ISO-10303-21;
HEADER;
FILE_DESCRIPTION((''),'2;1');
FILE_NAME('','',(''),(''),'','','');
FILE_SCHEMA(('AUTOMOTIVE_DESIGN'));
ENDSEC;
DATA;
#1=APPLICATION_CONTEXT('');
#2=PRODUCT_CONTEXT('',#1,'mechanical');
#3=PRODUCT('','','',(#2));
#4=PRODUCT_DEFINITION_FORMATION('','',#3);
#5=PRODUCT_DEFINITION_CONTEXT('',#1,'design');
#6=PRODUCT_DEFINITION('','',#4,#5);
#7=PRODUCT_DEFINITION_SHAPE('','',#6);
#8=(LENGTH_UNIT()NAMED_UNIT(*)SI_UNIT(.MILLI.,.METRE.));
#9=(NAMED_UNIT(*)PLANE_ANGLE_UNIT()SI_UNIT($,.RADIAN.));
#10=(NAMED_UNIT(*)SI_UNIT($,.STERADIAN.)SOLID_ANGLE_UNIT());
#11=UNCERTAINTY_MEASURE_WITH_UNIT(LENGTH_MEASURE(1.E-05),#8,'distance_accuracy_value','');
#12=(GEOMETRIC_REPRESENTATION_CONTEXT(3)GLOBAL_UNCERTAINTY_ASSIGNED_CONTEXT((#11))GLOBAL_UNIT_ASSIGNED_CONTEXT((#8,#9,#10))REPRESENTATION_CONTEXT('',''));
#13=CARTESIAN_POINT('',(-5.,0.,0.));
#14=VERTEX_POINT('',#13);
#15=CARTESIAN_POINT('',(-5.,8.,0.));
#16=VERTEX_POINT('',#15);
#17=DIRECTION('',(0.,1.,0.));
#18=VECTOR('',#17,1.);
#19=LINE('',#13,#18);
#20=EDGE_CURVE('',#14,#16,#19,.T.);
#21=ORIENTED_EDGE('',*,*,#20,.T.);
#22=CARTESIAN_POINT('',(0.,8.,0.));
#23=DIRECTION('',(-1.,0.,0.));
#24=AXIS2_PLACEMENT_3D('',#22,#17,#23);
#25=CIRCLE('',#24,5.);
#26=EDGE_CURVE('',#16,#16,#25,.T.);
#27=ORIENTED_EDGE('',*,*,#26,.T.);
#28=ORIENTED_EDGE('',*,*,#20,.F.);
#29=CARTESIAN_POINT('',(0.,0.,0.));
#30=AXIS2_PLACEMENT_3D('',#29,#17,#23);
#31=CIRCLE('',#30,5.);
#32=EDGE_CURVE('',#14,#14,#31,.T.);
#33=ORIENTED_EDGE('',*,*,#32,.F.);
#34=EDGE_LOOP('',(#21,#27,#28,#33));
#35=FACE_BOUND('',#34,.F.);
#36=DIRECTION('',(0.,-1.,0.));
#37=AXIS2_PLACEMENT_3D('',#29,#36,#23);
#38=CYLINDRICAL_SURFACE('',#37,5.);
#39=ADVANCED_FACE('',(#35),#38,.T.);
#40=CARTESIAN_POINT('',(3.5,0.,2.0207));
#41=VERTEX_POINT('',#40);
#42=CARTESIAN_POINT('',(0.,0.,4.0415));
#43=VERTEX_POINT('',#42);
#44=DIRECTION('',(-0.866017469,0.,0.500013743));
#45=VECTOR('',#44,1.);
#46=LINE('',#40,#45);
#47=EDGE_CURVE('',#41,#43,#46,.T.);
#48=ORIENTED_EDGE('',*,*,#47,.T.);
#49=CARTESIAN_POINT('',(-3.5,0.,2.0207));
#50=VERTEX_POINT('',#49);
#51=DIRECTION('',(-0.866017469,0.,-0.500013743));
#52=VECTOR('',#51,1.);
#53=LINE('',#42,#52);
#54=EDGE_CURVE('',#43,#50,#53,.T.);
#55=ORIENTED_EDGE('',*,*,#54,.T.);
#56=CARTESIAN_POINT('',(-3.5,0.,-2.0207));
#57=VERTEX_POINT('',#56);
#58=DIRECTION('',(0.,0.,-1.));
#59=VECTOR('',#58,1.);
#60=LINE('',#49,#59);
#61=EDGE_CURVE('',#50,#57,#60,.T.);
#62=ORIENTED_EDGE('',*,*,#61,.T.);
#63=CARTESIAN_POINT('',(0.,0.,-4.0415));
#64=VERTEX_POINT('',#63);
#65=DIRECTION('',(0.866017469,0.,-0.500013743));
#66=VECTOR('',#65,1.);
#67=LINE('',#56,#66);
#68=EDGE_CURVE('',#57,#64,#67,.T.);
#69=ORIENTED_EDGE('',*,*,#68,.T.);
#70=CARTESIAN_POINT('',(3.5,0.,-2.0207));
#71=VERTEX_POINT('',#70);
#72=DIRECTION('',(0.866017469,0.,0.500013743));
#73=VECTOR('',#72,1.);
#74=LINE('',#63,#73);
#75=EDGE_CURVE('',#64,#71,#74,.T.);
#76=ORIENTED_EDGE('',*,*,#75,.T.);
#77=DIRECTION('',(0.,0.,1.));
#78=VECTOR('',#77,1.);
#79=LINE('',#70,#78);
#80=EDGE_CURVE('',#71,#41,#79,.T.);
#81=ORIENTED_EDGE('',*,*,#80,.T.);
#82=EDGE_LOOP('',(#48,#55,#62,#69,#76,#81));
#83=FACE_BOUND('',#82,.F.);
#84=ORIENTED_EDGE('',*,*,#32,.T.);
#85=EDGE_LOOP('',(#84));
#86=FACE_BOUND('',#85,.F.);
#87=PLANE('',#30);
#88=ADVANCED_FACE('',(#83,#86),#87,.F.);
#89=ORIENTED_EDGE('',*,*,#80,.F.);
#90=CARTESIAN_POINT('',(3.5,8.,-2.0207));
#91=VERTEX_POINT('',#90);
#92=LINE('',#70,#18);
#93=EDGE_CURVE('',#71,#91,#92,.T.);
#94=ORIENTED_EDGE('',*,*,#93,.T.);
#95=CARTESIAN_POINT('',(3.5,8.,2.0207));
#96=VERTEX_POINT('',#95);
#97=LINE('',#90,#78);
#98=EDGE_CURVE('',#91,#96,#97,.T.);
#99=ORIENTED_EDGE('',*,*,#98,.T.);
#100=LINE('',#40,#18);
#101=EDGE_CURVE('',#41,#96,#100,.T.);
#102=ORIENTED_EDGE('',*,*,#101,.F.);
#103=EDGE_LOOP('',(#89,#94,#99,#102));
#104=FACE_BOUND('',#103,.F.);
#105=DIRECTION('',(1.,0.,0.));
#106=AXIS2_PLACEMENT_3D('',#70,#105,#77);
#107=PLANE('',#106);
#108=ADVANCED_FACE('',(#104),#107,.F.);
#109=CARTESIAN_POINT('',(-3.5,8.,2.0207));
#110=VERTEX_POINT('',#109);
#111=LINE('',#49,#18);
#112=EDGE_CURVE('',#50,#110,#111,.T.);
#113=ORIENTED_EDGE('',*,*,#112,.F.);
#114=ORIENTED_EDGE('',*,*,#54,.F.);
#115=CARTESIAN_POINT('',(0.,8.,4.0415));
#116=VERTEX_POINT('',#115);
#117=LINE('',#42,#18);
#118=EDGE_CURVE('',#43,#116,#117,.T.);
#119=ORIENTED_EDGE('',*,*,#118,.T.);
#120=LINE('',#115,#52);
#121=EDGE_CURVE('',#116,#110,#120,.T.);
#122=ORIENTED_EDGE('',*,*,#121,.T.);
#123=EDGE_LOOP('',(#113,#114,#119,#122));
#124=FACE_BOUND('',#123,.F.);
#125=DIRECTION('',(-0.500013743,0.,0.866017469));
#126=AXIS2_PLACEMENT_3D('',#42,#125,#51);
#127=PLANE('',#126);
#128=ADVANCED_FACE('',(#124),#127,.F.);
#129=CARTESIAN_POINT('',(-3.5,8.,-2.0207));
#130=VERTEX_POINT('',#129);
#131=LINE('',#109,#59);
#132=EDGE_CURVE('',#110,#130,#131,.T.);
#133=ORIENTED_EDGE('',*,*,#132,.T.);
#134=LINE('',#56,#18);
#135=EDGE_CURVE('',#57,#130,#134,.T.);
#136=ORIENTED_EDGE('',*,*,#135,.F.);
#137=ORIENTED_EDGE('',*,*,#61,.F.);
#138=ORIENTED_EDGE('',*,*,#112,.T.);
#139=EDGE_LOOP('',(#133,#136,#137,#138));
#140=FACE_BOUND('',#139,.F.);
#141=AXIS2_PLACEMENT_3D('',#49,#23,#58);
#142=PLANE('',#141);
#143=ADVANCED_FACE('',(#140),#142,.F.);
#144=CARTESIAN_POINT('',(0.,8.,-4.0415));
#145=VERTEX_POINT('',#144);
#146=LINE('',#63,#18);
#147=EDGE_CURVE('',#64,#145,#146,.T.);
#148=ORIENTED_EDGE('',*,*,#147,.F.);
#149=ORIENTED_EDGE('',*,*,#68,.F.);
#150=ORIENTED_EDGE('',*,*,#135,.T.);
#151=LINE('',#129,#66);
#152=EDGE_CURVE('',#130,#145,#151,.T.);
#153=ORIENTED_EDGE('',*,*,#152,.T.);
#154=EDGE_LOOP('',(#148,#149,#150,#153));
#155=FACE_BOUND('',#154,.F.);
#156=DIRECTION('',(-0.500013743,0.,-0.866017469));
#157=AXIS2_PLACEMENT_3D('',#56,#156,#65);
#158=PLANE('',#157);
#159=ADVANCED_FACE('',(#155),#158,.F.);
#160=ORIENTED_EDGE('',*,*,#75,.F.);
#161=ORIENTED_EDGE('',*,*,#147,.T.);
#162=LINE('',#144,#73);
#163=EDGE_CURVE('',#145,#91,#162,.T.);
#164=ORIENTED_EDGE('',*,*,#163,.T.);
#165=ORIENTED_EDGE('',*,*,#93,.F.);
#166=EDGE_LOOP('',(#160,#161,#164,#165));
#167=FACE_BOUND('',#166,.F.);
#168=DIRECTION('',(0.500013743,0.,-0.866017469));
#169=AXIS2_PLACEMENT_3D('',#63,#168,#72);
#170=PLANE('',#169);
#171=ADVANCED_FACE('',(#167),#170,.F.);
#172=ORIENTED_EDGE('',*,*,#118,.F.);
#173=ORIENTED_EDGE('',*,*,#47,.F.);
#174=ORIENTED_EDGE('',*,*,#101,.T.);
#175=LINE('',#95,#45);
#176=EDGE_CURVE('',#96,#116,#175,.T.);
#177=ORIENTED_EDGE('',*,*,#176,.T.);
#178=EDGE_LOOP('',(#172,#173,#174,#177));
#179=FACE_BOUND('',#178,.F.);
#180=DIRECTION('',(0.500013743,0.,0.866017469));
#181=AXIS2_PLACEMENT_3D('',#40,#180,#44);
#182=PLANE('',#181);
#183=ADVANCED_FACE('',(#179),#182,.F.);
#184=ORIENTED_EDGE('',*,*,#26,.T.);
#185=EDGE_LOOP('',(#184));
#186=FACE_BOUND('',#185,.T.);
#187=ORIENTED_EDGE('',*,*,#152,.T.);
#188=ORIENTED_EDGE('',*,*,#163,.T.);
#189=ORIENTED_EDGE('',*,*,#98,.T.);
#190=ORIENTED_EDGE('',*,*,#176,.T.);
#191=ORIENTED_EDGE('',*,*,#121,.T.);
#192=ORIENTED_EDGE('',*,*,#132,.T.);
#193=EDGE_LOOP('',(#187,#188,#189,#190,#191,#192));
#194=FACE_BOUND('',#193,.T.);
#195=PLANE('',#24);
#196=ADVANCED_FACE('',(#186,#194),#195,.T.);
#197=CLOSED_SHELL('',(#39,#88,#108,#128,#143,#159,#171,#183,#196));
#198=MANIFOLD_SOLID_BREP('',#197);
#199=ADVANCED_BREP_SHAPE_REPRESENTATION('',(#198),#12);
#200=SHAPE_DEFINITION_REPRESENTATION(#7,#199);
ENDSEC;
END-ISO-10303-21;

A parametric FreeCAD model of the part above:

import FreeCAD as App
import Part
import Sketcher
Q = App.Units.Quantity

doc = App.newDocument("Part")
body = doc.addObject("PartDesign::Body", "Body")

# Sketch on XZ plane
sketch1 = body.newObject("Sketcher::SketchObject", "Sketch")
sketch1.AttachmentSupport = (doc.getObject("XZ_Plane"), [""])
sketch1.MapMode = "FlatFace"
sketch1.addGeometry(Part.Circle(App.Vector(0, 0, 0), App.Vector(0, 0, 1), 5), False)
sketch1.addGeometry(Part.LineSegment(App.Vector(-3.5, 2, 0), App.Vector(-3.5, -2, 0)), False)
sketch1.addGeometry(Part.LineSegment(App.Vector(-3.5, -2, 0), App.Vector(0, -4, 0)), False)
sketch1.addGeometry(Part.LineSegment(App.Vector(0, -4, 0), App.Vector(3.5, -2, 0)), False)
sketch1.addGeometry(Part.LineSegment(App.Vector(3.5, -2, 0), App.Vector(3.5, 2, 0)), False)
sketch1.addGeometry(Part.LineSegment(App.Vector(3.5, 2, 0), App.Vector(0, 4, 0)), False)
sketch1.addGeometry(Part.LineSegment(App.Vector(0, 4, 0), App.Vector(-3.5, 2, 0)), False)
sketch1.addConstraint(Sketcher.Constraint("Coincident", 1, 2, 2, 1))
sketch1.addConstraint(Sketcher.Constraint("Coincident", 2, 2, 3, 1))
sketch1.addConstraint(Sketcher.Constraint("Coincident", 3, 2, 4, 1))
sketch1.addConstraint(Sketcher.Constraint("Coincident", 4, 2, 5, 1))
sketch1.addConstraint(Sketcher.Constraint("Coincident", 5, 2, 6, 1))
sketch1.addConstraint(Sketcher.Constraint("Coincident", 6, 2, 1, 1))
sketch1.addConstraint(Sketcher.Constraint("Vertical", 1))
sketch1.addConstraint(Sketcher.Constraint("Vertical", 4))
sketch1.addConstraint(Sketcher.Constraint("Coincident", 0, 3, -1, 1))
sketch1.addConstraint(Sketcher.Constraint("Symmetric", 1, 2, 4, 2, -1, 1))
sketch1.addConstraint(Sketcher.Constraint("Symmetric", 2, 2, 5, 2, -1, 1))
sketch1.addConstraint(Sketcher.Constraint("PointOnObject", 2, 2, -2))
sketch1.addConstraint(Sketcher.Constraint("Parallel", 3, 6))
sketch1.addConstraint(Sketcher.Constraint("Horizontal", 1, 2, 3, 2))
sketch1.addConstraint(Sketcher.Constraint("Diameter", 0, Q("10 mm")))
sketch1.addConstraint(Sketcher.Constraint("DistanceX", 1, 2, 3, 2, Q("7 mm")))
sketch1.addConstraint(Sketcher.Constraint("Angle", 2, Q("-30.001 deg")))
sketch1.addConstraint(Sketcher.Constraint("DistanceY", 1, 2, 1, 1, Q("4.0414 mm")))
pad1 = body.newObject("PartDesign::Pad", "Pad")
pad1.Profile = sketch1
pad1.Length = 8
pad1.Reversed = True

doc.recompute()
